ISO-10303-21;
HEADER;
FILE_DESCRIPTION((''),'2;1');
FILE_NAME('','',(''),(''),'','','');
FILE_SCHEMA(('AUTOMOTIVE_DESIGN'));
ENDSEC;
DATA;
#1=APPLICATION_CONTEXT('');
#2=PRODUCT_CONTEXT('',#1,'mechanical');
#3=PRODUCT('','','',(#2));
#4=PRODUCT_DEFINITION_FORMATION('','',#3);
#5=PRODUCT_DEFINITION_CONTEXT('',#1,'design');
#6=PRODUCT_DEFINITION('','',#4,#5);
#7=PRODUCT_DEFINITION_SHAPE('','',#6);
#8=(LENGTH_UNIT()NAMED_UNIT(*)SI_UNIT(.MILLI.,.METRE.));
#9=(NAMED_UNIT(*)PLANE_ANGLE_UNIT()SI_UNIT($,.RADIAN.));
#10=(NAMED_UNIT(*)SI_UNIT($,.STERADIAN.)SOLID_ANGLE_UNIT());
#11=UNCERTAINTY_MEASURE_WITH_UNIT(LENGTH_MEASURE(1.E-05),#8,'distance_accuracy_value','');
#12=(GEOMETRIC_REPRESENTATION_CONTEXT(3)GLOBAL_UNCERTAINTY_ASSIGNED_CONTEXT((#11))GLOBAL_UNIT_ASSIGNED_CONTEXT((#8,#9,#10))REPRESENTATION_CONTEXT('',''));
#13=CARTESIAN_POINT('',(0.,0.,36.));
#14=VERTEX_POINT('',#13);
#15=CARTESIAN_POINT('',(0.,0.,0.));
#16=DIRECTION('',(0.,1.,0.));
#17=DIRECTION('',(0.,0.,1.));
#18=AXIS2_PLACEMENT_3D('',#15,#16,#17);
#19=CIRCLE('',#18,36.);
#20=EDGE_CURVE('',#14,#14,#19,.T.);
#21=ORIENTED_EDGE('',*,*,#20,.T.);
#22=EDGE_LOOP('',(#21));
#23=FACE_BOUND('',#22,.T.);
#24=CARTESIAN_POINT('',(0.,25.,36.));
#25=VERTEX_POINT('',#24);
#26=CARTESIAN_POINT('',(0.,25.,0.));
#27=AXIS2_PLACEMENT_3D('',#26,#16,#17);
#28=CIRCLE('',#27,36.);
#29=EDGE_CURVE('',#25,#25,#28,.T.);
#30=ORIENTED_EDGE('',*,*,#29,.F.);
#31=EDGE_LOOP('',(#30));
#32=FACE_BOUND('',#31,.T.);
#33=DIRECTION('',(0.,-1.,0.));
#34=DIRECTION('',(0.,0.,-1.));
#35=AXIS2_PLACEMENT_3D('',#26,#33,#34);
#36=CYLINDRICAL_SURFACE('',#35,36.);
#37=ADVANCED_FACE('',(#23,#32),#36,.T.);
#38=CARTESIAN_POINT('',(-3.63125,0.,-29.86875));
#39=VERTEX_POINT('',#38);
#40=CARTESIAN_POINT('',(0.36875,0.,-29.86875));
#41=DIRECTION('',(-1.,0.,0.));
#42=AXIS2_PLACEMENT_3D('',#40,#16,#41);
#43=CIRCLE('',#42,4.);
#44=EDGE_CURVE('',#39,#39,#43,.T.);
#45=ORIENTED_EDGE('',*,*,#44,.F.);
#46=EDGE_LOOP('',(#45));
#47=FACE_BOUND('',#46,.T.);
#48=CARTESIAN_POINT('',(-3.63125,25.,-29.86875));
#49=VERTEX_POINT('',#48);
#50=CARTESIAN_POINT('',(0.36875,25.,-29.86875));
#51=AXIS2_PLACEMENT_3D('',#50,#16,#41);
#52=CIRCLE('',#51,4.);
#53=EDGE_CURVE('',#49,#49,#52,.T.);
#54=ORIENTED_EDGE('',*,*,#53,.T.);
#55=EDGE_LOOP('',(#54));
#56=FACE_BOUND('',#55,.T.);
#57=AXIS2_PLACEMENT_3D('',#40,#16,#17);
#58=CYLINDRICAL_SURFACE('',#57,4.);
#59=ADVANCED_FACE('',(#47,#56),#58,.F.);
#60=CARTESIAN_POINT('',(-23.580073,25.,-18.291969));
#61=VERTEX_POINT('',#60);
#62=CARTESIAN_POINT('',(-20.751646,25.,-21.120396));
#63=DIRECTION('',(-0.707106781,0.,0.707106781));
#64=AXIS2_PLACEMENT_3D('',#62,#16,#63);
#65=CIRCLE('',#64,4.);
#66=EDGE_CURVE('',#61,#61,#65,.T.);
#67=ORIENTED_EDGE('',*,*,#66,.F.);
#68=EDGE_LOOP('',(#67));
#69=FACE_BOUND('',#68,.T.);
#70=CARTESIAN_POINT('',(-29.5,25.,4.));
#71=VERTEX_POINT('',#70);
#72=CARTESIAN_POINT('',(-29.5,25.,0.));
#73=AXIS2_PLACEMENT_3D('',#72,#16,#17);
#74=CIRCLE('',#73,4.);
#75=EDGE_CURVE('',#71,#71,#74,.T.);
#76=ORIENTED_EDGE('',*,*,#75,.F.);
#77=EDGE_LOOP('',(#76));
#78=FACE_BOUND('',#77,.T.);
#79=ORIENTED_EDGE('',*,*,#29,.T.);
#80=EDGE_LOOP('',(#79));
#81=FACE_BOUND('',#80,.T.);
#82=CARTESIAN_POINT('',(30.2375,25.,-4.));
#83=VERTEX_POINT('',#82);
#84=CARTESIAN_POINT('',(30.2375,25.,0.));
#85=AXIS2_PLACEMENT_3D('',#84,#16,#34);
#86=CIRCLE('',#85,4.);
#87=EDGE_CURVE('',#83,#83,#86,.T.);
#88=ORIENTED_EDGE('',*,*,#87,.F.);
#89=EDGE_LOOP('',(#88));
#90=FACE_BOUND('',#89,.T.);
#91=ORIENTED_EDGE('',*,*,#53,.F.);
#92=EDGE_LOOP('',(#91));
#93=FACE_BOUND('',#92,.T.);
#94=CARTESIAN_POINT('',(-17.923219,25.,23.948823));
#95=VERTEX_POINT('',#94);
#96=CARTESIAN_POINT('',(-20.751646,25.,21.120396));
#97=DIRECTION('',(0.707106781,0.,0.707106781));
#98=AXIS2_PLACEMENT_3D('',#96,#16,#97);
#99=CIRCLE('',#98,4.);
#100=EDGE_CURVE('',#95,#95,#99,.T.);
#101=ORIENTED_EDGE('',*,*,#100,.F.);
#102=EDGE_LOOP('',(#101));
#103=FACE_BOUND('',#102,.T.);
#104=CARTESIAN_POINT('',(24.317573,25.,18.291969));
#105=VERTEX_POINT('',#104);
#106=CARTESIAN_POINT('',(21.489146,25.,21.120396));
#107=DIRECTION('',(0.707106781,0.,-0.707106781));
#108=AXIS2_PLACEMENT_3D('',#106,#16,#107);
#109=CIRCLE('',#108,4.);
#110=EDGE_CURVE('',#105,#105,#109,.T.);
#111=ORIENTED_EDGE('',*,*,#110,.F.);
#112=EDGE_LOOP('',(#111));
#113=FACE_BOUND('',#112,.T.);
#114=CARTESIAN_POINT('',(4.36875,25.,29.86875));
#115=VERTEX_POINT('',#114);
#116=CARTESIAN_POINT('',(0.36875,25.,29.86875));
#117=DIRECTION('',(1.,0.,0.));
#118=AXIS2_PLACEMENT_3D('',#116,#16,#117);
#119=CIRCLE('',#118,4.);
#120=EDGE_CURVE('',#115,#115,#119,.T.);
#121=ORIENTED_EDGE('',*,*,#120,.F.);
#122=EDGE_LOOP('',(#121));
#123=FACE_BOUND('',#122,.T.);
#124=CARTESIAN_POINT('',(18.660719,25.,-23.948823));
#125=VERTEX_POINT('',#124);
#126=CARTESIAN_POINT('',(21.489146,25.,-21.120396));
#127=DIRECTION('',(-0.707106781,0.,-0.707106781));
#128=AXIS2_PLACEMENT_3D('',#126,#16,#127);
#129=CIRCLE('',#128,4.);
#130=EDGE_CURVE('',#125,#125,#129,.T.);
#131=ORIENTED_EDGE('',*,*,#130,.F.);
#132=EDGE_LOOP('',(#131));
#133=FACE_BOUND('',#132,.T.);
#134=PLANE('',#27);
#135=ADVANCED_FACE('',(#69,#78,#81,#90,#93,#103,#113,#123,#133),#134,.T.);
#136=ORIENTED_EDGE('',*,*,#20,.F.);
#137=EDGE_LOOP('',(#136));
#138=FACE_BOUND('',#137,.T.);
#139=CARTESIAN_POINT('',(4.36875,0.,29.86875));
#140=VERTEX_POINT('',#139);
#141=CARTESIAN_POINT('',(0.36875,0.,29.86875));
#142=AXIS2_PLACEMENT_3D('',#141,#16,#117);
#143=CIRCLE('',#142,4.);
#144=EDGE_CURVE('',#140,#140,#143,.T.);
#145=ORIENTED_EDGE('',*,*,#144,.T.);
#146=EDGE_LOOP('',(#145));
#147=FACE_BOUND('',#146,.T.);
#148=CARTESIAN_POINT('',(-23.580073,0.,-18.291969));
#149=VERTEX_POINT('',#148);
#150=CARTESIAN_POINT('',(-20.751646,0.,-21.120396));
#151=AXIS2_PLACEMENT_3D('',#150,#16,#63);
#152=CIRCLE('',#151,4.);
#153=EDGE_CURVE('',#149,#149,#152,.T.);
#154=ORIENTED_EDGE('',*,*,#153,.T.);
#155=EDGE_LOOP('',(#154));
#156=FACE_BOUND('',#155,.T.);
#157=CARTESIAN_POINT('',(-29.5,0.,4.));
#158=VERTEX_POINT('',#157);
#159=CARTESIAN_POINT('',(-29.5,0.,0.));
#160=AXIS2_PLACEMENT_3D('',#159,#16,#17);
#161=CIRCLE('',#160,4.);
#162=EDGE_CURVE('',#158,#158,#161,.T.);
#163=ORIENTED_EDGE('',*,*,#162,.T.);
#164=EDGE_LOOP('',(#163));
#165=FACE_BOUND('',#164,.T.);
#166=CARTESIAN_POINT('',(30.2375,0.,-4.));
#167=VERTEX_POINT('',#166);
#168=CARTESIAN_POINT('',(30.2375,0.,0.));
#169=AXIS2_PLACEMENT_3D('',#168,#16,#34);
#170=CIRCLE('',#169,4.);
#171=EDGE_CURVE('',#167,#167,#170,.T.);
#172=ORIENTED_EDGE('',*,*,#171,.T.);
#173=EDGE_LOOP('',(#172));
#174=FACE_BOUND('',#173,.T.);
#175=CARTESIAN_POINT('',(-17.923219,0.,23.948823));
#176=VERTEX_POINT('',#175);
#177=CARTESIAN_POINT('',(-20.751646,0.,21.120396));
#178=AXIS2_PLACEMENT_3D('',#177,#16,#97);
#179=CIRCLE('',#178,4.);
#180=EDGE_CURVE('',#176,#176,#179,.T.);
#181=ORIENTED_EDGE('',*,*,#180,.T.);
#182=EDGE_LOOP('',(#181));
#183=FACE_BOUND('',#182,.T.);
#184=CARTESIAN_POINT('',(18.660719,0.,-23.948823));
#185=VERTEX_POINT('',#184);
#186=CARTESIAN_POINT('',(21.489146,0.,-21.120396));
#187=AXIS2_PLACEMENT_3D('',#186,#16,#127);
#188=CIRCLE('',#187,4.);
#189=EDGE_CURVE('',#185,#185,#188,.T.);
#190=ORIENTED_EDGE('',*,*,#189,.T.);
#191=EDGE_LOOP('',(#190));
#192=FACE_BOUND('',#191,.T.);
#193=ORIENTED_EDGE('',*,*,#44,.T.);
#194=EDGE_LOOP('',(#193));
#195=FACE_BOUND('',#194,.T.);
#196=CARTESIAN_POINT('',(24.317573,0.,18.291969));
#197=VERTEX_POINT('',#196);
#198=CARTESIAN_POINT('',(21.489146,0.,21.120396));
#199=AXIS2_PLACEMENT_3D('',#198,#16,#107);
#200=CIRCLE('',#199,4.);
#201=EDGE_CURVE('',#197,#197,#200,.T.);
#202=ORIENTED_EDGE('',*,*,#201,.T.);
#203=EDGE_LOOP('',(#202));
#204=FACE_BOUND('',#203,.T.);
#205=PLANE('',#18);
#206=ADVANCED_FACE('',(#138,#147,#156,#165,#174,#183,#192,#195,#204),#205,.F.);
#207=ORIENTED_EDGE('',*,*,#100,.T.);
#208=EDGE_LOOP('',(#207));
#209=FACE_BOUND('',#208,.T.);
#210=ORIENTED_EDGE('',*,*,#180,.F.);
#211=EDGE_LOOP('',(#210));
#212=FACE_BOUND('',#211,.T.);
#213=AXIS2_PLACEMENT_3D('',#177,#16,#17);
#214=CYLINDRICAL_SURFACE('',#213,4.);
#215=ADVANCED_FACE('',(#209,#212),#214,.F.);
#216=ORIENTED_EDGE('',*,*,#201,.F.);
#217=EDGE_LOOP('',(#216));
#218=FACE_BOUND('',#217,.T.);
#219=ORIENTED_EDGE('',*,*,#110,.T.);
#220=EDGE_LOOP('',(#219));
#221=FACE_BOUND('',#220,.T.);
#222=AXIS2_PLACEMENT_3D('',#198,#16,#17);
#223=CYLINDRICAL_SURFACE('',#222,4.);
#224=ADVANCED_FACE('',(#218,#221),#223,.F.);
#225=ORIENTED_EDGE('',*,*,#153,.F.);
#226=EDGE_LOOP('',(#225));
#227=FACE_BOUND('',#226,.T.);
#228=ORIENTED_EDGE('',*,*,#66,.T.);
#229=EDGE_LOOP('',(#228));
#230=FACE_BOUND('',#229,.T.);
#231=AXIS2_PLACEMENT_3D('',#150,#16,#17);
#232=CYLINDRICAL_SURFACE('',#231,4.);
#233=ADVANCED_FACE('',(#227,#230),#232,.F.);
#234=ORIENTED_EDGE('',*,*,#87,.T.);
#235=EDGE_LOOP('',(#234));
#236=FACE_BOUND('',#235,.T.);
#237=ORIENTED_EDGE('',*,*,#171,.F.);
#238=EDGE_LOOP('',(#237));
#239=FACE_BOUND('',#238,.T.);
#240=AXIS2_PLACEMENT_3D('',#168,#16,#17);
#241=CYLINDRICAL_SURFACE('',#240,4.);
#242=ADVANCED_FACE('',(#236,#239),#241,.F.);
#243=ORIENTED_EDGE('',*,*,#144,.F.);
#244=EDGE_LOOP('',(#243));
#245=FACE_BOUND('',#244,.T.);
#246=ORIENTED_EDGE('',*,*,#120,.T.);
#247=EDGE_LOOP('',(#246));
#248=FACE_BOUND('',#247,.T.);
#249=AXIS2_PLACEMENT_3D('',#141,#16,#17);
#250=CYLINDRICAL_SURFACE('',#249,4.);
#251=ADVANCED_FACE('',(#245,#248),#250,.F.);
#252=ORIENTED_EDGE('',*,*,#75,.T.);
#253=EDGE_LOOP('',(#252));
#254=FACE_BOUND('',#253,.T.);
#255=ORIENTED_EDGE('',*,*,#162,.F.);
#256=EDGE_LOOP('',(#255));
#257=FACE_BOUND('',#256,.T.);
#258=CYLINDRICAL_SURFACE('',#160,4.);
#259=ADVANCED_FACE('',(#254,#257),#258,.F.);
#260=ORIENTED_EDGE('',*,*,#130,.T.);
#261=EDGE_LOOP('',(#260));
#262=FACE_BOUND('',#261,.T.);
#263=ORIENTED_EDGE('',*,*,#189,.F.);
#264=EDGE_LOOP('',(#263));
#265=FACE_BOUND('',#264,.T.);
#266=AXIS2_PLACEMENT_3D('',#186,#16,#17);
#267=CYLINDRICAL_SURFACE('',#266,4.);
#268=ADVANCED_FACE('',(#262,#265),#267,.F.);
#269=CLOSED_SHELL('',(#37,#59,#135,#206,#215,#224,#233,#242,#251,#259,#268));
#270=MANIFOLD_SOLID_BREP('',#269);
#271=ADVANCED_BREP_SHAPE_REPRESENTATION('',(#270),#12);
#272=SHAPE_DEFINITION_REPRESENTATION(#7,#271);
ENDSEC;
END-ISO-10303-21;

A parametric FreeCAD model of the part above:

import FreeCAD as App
import Part
import Sketcher

V = App.Vector
Q = App.Units.Quantity

doc = App.newDocument("Part")
params = doc.addObject("Spreadsheet::Sheet", "Params")
for row, (alias, value) in enumerate([
    ("sketch1_diameter", "72 mm"),
    ("pad1_length", "25 mm"),
    ("sketch2_diameter", "8 mm"),
], start=1):
    params.set(f"A{row}", alias)
    params.set(f"B{row}", "=" + value)
    params.setAlias(f"B{row}", alias)

body = doc.addObject("PartDesign::Body", "Body")

# Sketch on XZ plane
sketch1 = body.newObject("Sketcher::SketchObject", "Sketch")
sketch1.AttachmentSupport = (doc.getObject("XZ_Plane"), [""])
sketch1.MapMode = "FlatFace"
sketch1.addGeometry(Part.Circle(V(0, 0, 0), V(0, 0, 1), 36), False)
sketch1.addConstraint([
    Sketcher.Constraint("Coincident", 0, 3, -1, 1),
    Sketcher.Constraint("Diameter", 0, Q("72 mm")),
])
sketch1.setExpression("Constraints[1]", "Params.sketch1_diameter")
pad1 = body.newObject("PartDesign::Pad", "Pad")
pad1.Profile = sketch1
pad1.setExpression("Length", "Params.pad1_length")
pad1.Reversed = True

# Sketch on XZ plane
sketch2 = body.newObject("Sketcher::SketchObject", "Sketch001")
sketch2.AttachmentSupport = (doc.getObject("XZ_Plane"), [""])
sketch2.MapMode = "FlatFace"
sketch2.AttachmentOffset = App.Placement(V(0, 0, -25), App.Rotation())
sketch2.addGeometry(Part.Circle(V(-29.5, 0, 0), V(0, 0, 1), 4), False)
sketch2.addConstraint([
    Sketcher.Constraint("PointOnObject", 0, 3, -1),
    Sketcher.Constraint("Diameter", 0, Q("8 mm")),
    Sketcher.Constraint("DistanceX", 0, 3, -1, 1, Q("29.5 mm")),
])
sketch2.setExpression("Constraints[1]", "Params.sketch2_diameter")
pocket1 = body.newObject("PartDesign::Pocket", "Pocket")
pocket1.Profile = sketch2
pocket1.Type = "ThroughAll"
pocket1.Reversed = True
doc.recompute()

datumline = body.newObject("PartDesign::Line", "DatumLine")
datumline.Placement = App.Placement(V(0.36875, 0, 0), App.Rotation(V(0, 0, 1), V(0, 1, 0)))
polarpattern = body.newObject("PartDesign::PolarPattern", "PolarPattern")
polarpattern.Originals = [pocket1]
polarpattern.Axis = (datumline, [""])
polarpattern.Angle = 360
polarpattern.Occurrences = 8
body.Tip = polarpattern

doc.recompute()
